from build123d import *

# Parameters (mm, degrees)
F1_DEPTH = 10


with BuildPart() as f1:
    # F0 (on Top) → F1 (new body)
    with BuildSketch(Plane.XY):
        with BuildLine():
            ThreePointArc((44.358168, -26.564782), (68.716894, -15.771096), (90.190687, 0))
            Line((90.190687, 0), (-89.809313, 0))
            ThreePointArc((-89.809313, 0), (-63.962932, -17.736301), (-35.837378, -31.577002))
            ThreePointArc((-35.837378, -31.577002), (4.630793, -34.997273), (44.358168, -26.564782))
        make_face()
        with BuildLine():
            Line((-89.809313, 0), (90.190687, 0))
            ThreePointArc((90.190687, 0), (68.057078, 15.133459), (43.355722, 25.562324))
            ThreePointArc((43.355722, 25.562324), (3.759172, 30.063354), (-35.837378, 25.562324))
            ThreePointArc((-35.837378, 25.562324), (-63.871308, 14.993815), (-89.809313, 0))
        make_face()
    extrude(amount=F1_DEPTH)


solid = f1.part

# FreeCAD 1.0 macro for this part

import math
import FreeCAD as App
import Part
import Sketcher

V = App.Vector

doc = App.newDocument("Part")
params = doc.addObject("Spreadsheet::Sheet", "Params")
for row, (alias, value) in enumerate([
    ("pad1_length", "10 mm"),
], start=1):
    params.set(f"A{row}", alias)
    params.set(f"B{row}", "=" + value)
    params.setAlias(f"B{row}", alias)

body = doc.addObject("PartDesign::Body", "Body")

sketch1 = doc.addObject("Sketcher::SketchObject", "Sketch")
body.addObject(sketch1)
sketch1.AttachmentSupport = (doc.XY_Plane, [""])
sketch1.MapMode = "FlatFace"
sketch1.addGeometry([
    Part.ArcOfCircle(Part.Circle(V(7, 91, 0), V(0, 0, 1), 123), math.radians(-72), math.radians(-48)),
    Part.ArcOfCircle(Part.Circle(V(4, -103, 0), V(0, 0, 1), 134), math.radians(50), math.radians(73)),
    Part.ArcOfCircle(Part.Circle(V(4, -146, 0), V(0, 0, 1), 176), math.radians(77), math.radians(103)),
    Part.ArcOfCircle(Part.Circle(V(15, -151, 0), V(0, 0, 1), 183), math.radians(105.97), math.radians(124.72)),
    Part.ArcOfCircle(Part.Circle(V(46, 170, 0), V(0, 0, 1), 218), math.radians(-128.59), math.radians(-112.07)),
    Part.ArcOfCircle(Part.Circle(V(-4, 104, 0), V(0, 0, 1), 139), math.radians(-103), math.radians(-70)),
], False)
sketch1.addConstraint([
    Sketcher.Constraint("Coincident", 0, 2, 1, 1),
    Sketcher.Constraint("Coincident", 1, 2, 2, 1),
    Sketcher.Constraint("Coincident", 2, 2, 3, 1),
    Sketcher.Constraint("Coincident", 3, 2, 4, 1),
    Sketcher.Constraint("Coincident", 4, 2, 5, 1),
    Sketcher.Constraint("Coincident", 5, 2, 0, 1),
    Sketcher.Constraint("PointOnObject", 0, 2, -1),
    Sketcher.Constraint("PointOnObject", 3, 2, -1),
    Sketcher.Constraint("Horizontal", 1, 2, 2, 2),
    Sketcher.Constraint("Vertical", 2, 2, 4, 2),
    Sketcher.Constraint("Radius", 0, 123.38719),
    Sketcher.Constraint("Radius", 2, 176.420291),
    Sketcher.Constraint("Radius", 4, 217.712292),
    Sketcher.Constraint("Radius", 1, 134.133702),
    Sketcher.Constraint("Radius", 3, 183.311513),
    Sketcher.Constraint("Radius", 5, 138.884014),
    Sketcher.Constraint("DistanceX", -1, 1, 3, 3, 14.5935),
    Sketcher.Constraint("DistanceX", 0, 3, 1, 2, 36.512901),
    Sketcher.Constraint("DistanceX", 2, 2, 0, 3, 42.680199),
    Sketcher.Constraint("DistanceX", -1, 1, 0, 3, 6.842821),
    Sketcher.Constraint("DistanceX", -1, 1, 1, 3, 3.795912),
    Sketcher.Constraint("DistanceY", 3, 3, -1, 1, 150.675689),
    Sketcher.Constraint("DistanceX", -1, 1, 4, 3, 45.978452),
    Sketcher.Constraint("DistanceX", 5, 3, -1, 1, 4.03255),
])
pad1 = doc.addObject("PartDesign::Pad", "Pad")
body.addObject(pad1)
pad1.Profile = sketch1
pad1.setExpression("Length", "Params.pad1_length")

doc.recompute()
